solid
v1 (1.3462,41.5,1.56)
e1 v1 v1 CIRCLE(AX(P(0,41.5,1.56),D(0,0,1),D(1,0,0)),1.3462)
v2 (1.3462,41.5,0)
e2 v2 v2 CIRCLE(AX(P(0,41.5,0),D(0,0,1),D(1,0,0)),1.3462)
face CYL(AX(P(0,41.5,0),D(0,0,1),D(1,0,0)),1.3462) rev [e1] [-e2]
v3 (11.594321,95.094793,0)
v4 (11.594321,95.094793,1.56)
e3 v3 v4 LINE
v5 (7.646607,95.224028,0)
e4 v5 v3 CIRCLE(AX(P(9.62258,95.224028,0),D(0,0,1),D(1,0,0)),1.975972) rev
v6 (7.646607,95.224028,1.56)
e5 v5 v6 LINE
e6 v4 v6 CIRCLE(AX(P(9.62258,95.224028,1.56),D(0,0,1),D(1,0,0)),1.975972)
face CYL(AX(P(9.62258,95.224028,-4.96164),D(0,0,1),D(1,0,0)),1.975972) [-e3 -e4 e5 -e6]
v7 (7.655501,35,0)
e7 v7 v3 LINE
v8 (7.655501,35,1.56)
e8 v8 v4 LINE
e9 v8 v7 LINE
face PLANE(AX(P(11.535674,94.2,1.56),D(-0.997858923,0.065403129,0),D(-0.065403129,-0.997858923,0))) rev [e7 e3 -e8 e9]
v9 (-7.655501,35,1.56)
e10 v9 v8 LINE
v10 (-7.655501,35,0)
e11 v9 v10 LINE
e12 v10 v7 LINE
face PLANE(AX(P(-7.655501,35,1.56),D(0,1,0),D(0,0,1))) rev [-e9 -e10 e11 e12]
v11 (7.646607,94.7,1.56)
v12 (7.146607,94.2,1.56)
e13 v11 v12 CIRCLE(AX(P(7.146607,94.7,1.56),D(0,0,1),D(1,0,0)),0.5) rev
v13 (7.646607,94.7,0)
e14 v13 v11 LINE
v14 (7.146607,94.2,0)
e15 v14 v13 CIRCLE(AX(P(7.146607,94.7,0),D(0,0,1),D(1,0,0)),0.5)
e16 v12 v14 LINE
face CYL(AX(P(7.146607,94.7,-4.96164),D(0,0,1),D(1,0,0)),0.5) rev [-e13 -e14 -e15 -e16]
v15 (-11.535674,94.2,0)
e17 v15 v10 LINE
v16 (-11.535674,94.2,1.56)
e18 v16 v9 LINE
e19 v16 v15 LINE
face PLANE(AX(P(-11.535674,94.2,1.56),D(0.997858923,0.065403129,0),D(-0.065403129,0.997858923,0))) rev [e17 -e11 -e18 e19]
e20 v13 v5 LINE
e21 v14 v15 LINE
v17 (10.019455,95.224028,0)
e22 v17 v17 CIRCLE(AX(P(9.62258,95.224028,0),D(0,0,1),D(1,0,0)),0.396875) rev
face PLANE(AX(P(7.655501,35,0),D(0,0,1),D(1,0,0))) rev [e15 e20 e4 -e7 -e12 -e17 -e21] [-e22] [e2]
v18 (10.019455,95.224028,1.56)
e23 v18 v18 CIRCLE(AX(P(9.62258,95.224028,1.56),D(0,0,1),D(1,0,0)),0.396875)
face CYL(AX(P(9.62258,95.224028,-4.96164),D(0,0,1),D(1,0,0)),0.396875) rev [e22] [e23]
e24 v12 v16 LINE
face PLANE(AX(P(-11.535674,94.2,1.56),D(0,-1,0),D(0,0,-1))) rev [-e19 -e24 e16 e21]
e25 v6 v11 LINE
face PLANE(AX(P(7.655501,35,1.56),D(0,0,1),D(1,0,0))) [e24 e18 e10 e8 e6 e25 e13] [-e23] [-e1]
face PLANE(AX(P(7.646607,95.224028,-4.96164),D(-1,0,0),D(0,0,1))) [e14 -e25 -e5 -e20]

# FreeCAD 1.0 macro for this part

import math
import FreeCAD as App
import Part
import Sketcher
from FreeCAD import Vector
Q = App.Units.Quantity


def edges_at(feature, points):
    """Names of the edges that pass closest to the given points."""
    edges = feature.Shape.Edges
    near = lambda p: min(range(len(edges)), key=lambda i: edges[i].distToShape(Part.Vertex(*p))[0])
    return sorted({f"Edge{near(p) + 1}" for p in points})


def add_polygon(sketch, points):
    """Adds a closed chain of lines whose ends are joined by coincident constraints."""
    first, n = sketch.GeometryCount, len(points)
    for a, b in zip(points, points[1:] + points[:1]):
        sketch.addGeometry(Part.LineSegment(App.Vector(*a, 0), App.Vector(*b, 0)), False)
    for i in range(n):
        sketch.addConstraint(Sketcher.Constraint("Coincident", first + i, 2, first + (i + 1) % n, 1))

doc = App.newDocument("Part")
body = doc.addObject("PartDesign::Body", "Body")

# Sketch on XY plane
sketch1 = body.newObject("Sketcher::SketchObject", "Sketch")
sketch1.AttachmentSupport = (doc.getObject("XY_Plane"), [""])
sketch1.MapMode = "FlatFace"
add_polygon(sketch1, [(-8, 35), (8, 35), (12, 94), (-12, 94)])  # lines 0-3
sketch1.addConstraint([
    Sketcher.Constraint("Horizontal", 0),
    Sketcher.Constraint("Horizontal", 2),
    Sketcher.Constraint("Equal", 1, 3),
    Sketcher.Constraint("Angle", 1, Q("86.25 deg")),
    Sketcher.Constraint("DistanceX", 0, 1, 0, 2, 15.311001),
    Sketcher.Constraint("DistanceX", -1, 1, 0, 2, 7.655501),
    Sketcher.Constraint("DistanceY", -1, 1, 0, 2, 35.0),
    Sketcher.Constraint("DistanceY", -1, 1, 1, 2, 94.2),
])
pad1 = body.newObject("PartDesign::Pad", "Pad")
pad1.Profile = sketch1
pad1.Length = 1.56

# Sketch on XY plane
sketch2 = body.newObject("Sketcher::SketchObject", "Sketch001")
sketch2.AttachmentSupport = (doc.getObject("XY_Plane"), [""])
sketch2.MapMode = "FlatFace"
sketch2.AttachmentOffset = App.Placement(Vector(0, 0, 1.56), App.Rotation())
sketch2.addGeometry(Part.Circle(Vector(0, 41.5, 0), Vector(0, 0, 1), 1.3), False)
sketch2.addConstraint([
    Sketcher.Constraint("PointOnObject", 0, 3, -2),
    Sketcher.Constraint("Diameter", 0, Q("0.106 in")),
    Sketcher.Constraint("DistanceY", -1, 1, 0, 3, 41.5),
])
pocket1 = body.newObject("PartDesign::Pocket", "Pocket")
pocket1.Profile = sketch2
pocket1.Type = "ThroughAll"

# Sketch on XY plane
sketch3 = body.newObject("Sketcher::SketchObject", "Sketch002")
sketch3.AttachmentSupport = (doc.getObject("XY_Plane"), [""])
sketch3.MapMode = "FlatFace"
sketch3.AttachmentOffset = App.Placement(Vector(0, 0, 1.56), App.Rotation())
sketch3.addGeometry([
    Part.LineSegment(Vector(7.65, 94.2, 0), Vector(11.54, 94.2, 0)),  # 0
    Part.LineSegment(Vector(11.54, 94.2, 0), Vector(11.59, 95.09, 0)),  # 1
    Part.ArcOfCircle(Part.Circle(Vector(9.62, 95.22, 0), Vector(0, 0, 1), 1.98), math.radians(-4), math.radians(180)),  # 2
    Part.LineSegment(Vector(7.65, 95.22, 0), Vector(7.65, 94.2, 0)),  # 3
    Part.Circle(Vector(9.62, 95.22, 0), Vector(0, 0, 1), 0.4),  # 4
], False)
sketch3.addConstraint([
    Sketcher.Constraint("Coincident", 0, 2, 1, 1),
    Sketcher.Constraint("Tangent", 1, 2, 2, 1),
    Sketcher.Constraint("Tangent", 2, 2, 3, 1),
    Sketcher.Constraint("Coincident", 3, 2, 0, 1),
    Sketcher.Constraint("Horizontal", 0),
    Sketcher.Constraint("Vertical", 3),
    Sketcher.Constraint("Coincident", 4, 3, 2, 3),
    Sketcher.Constraint("Diameter", 4, Q("0.03125 in")),
    Sketcher.Constraint("Angle", 1, Q("86.25 deg")),
    Sketcher.Constraint("Radius", 2, 1.975972),
    Sketcher.Constraint("DistanceY", -1, 1, 0, 2, 94.2),
    Sketcher.Constraint("DistanceX", 0, 1, 0, 2, 3.889066),
    Sketcher.Constraint("DistanceX", -1, 1, 2, 3, 9.62258),
])
pad2 = body.newObject("PartDesign::Pad", "Pad001")
pad2.Profile = sketch3
pad2.Length = 1.56
pad2.Reversed = True
doc.recompute()

fillet = body.newObject("PartDesign::Fillet", "Fillet")
fillet.Base = (pad2, edges_at(pad2, [(7.647, 94.2, 0.78)]))
fillet.Radius = 0.5

doc.recompute()
